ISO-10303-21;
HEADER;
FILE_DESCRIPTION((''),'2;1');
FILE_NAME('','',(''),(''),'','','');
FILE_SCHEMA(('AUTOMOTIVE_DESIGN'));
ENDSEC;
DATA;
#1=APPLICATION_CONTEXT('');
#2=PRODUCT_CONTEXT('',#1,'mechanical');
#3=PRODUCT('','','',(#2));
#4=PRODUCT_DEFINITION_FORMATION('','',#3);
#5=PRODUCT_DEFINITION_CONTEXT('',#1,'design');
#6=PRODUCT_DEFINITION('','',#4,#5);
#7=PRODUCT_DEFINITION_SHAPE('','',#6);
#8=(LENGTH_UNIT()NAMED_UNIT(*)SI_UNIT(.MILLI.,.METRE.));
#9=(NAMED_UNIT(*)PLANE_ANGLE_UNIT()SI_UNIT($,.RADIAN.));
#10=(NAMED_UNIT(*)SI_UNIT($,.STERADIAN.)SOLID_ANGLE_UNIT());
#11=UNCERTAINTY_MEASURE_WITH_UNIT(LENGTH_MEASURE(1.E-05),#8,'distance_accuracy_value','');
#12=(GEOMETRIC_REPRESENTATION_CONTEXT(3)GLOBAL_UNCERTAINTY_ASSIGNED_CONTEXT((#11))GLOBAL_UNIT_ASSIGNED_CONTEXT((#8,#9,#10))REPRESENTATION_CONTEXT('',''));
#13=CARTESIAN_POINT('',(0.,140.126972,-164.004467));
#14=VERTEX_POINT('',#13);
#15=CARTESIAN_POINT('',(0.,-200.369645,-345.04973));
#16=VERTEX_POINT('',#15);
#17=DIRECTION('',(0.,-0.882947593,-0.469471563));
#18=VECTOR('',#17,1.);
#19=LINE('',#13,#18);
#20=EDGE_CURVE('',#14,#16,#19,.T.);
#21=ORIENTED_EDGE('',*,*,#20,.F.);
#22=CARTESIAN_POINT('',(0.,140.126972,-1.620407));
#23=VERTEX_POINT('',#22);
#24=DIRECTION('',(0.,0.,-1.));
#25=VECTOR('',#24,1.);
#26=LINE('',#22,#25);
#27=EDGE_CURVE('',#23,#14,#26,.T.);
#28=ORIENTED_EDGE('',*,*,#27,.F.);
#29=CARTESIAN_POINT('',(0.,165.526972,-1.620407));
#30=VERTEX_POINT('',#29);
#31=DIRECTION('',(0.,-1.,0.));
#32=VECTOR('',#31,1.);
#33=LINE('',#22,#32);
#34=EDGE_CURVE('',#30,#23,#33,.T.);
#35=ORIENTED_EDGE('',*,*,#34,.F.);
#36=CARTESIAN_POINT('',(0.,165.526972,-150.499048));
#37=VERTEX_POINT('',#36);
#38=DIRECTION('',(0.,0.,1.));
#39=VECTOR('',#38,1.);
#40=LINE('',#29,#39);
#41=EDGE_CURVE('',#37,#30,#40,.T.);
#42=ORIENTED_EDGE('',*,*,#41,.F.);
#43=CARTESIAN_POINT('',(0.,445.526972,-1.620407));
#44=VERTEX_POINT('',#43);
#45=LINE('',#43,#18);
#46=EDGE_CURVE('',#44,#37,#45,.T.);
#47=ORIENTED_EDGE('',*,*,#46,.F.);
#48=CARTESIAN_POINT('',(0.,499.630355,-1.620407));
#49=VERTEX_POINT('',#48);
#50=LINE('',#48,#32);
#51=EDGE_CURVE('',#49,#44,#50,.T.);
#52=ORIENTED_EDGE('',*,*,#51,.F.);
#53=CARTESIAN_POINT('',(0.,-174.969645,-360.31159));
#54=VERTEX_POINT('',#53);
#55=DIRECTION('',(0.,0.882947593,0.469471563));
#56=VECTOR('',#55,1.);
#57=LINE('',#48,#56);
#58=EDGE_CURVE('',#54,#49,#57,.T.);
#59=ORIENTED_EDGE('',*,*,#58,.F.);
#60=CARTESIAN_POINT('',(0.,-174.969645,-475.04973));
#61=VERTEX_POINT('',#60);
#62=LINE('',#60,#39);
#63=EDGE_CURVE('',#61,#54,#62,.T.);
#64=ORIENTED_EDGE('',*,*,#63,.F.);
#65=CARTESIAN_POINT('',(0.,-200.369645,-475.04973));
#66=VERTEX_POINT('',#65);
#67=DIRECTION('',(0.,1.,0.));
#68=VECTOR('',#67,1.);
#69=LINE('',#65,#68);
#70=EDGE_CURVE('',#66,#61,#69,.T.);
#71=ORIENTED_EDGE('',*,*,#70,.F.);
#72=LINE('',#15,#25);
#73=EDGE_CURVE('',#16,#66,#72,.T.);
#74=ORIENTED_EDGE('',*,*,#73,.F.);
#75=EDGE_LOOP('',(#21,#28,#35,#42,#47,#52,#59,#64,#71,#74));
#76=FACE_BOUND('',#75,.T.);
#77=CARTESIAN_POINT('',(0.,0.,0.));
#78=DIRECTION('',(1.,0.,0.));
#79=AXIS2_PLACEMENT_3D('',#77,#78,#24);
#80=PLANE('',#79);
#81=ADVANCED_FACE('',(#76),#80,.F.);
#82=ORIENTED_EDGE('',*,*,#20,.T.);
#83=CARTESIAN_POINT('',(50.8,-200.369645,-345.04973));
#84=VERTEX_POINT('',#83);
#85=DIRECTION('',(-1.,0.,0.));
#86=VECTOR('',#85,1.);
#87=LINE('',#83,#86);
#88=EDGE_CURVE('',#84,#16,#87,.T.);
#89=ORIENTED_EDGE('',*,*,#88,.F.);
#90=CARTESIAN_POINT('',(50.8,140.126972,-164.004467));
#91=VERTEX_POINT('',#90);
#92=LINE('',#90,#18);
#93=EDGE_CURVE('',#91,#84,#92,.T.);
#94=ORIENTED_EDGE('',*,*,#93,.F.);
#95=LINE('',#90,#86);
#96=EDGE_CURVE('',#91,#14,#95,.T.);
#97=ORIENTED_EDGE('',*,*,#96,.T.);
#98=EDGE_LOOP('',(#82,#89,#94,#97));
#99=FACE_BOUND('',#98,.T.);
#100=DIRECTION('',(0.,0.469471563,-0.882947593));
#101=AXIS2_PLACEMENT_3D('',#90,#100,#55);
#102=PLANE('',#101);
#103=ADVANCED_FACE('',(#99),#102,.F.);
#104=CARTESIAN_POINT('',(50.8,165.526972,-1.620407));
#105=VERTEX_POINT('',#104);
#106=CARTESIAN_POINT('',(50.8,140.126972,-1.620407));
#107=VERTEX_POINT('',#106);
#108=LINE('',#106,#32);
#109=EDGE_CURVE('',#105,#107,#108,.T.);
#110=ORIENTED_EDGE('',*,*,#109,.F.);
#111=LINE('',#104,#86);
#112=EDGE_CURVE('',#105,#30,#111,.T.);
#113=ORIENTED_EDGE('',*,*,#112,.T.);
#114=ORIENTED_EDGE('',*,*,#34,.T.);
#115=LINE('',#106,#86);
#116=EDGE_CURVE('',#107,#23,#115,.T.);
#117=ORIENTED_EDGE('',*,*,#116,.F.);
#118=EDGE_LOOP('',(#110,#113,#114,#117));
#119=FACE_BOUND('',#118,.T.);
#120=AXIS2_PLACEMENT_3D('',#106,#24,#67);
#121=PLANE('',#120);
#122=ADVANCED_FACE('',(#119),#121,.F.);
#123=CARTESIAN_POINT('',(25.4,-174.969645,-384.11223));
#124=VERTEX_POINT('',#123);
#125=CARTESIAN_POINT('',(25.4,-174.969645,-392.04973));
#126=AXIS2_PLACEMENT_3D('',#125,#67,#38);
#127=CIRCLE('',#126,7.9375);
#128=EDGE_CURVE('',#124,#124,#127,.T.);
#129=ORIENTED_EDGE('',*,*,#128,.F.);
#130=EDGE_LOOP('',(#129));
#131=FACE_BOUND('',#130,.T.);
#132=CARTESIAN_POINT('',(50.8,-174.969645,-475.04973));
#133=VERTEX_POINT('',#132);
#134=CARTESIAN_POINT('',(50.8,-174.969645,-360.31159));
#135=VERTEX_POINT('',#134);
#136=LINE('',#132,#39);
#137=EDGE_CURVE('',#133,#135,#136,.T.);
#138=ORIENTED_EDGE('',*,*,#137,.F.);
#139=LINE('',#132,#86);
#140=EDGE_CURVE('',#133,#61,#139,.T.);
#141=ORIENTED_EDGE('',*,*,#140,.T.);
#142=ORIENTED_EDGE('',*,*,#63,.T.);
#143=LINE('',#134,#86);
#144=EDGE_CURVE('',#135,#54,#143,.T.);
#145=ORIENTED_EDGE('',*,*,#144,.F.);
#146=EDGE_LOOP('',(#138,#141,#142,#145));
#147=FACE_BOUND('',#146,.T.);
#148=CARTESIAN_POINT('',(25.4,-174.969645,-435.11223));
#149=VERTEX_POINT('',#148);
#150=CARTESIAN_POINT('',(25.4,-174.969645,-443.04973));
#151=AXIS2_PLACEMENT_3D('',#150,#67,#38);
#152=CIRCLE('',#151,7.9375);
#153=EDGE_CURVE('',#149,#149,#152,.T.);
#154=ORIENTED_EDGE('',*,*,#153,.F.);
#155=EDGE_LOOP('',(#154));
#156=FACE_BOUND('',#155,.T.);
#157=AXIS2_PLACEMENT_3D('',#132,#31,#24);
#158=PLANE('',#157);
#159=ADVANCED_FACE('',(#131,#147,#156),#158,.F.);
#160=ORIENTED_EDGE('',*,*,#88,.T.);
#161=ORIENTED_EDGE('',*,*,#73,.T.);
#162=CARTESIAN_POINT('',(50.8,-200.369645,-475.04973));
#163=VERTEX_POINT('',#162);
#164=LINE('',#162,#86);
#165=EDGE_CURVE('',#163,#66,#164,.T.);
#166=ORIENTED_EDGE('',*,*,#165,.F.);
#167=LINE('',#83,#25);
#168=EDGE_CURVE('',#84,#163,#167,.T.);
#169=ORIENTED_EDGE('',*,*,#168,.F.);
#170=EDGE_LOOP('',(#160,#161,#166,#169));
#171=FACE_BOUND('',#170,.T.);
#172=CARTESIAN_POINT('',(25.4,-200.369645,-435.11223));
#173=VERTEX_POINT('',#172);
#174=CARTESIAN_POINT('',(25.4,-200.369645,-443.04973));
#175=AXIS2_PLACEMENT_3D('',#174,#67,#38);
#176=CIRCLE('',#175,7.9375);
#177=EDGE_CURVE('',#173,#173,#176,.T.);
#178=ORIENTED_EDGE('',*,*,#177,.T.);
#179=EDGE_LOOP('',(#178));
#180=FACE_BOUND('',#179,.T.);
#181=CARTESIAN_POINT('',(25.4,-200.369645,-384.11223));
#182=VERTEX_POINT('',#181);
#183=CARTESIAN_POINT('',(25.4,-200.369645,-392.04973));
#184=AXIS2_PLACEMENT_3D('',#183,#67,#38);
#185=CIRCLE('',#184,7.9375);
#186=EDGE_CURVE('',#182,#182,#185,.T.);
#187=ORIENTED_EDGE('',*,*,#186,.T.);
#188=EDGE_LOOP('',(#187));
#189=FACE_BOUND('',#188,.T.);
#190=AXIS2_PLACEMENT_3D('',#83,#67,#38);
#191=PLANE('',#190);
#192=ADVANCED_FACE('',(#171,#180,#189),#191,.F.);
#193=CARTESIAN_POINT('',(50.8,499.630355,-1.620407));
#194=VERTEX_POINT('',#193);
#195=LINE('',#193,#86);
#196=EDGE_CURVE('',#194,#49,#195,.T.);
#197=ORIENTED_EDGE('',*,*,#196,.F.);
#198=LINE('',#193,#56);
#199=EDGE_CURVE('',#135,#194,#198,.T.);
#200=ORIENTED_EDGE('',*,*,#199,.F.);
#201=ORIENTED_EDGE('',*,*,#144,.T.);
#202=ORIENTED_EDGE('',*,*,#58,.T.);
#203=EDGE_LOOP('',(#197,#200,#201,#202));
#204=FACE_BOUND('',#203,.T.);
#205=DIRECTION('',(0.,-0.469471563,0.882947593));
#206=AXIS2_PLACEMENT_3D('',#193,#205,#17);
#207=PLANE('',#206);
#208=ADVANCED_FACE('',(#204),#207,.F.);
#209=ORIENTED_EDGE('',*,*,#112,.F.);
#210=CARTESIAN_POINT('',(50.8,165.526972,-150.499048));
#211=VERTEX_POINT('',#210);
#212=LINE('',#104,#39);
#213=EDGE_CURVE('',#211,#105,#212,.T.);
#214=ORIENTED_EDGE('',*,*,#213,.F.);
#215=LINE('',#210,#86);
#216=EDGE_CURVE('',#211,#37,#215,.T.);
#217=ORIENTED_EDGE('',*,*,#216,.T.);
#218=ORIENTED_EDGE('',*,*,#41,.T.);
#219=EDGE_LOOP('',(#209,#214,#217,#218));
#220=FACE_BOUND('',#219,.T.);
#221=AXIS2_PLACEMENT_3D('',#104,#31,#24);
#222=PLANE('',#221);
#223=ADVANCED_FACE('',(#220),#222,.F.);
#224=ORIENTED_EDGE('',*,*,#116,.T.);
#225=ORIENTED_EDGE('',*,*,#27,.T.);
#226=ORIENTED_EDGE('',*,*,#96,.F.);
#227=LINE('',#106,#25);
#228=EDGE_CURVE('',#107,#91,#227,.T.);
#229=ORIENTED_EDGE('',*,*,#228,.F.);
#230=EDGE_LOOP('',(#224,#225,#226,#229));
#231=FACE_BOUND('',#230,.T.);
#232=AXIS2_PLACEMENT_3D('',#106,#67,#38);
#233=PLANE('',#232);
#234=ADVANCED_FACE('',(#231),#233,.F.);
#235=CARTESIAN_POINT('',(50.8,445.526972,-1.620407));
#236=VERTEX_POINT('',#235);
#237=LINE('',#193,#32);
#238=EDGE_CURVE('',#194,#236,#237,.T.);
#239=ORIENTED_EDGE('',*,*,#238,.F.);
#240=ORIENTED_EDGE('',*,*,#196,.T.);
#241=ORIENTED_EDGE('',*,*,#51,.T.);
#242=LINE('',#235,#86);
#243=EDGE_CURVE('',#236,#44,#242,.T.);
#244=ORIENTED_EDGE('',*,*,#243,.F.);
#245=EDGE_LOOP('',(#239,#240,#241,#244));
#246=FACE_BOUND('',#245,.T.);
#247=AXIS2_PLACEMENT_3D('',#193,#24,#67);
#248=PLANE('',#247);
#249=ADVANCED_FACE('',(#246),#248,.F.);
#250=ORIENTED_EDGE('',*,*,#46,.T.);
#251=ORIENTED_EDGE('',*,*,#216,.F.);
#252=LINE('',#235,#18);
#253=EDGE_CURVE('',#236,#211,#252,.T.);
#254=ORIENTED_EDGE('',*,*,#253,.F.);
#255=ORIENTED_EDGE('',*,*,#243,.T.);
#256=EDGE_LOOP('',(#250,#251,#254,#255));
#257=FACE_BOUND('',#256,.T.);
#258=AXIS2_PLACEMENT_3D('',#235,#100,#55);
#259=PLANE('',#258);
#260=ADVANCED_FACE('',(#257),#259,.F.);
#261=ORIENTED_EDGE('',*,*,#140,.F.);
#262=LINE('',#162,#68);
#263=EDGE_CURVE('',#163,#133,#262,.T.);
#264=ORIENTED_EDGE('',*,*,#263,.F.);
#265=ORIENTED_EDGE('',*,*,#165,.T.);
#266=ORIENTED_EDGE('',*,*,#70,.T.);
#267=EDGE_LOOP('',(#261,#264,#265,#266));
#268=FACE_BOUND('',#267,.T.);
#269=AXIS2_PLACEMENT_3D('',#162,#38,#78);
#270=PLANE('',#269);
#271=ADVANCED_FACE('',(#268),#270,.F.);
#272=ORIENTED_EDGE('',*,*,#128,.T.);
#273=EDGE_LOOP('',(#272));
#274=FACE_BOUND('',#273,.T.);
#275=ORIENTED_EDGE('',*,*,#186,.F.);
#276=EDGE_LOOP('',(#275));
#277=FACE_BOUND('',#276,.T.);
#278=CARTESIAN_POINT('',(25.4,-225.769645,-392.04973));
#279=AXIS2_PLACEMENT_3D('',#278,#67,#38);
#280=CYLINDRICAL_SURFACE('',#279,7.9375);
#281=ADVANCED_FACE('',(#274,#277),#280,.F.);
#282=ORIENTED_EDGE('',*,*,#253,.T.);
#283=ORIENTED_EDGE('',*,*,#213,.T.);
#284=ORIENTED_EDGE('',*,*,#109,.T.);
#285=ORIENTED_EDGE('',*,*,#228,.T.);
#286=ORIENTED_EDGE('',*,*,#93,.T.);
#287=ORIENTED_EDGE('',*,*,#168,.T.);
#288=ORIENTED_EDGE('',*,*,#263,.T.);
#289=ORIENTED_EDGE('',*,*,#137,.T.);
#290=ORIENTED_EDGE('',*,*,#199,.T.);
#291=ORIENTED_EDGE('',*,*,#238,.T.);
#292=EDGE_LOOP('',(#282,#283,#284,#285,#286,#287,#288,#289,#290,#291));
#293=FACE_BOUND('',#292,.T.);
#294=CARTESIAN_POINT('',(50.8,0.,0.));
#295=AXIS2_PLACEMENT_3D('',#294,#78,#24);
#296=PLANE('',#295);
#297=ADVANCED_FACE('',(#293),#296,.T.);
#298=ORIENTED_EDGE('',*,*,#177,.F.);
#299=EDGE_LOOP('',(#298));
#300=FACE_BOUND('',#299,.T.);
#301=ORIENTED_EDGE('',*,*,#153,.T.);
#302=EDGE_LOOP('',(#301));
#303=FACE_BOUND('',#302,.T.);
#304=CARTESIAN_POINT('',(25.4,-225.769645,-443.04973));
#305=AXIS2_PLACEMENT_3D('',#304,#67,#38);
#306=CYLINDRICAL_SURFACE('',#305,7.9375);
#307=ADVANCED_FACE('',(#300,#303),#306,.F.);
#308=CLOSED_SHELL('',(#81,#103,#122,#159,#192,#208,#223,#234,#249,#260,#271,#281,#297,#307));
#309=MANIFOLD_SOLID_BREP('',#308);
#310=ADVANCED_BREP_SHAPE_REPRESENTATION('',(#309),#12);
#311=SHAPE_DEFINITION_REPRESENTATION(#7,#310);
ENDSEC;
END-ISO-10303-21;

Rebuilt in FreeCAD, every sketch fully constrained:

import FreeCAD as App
import Part
import Sketcher

V = App.Vector
Q = App.Units.Quantity


def add_polygon(sketch, points):
    """Adds a closed chain of lines whose ends are joined by coincident constraints."""
    first, n = sketch.GeometryCount, len(points)
    for a, b in zip(points, points[1:] + points[:1]):
        sketch.addGeometry(Part.LineSegment(App.Vector(*a, 0), App.Vector(*b, 0)), False)
    for i in range(n):
        sketch.addConstraint(Sketcher.Constraint("Coincident", first + i, 2, first + (i + 1) % n, 1))

doc = App.newDocument("Part")
body = doc.addObject("PartDesign::Body", "Body")

# Sketch on YZ plane
sketch1 = body.newObject("Sketcher::SketchObject", "Sketch")
sketch1.AttachmentSupport = (doc.getObject("YZ_Plane"), [""])
sketch1.MapMode = "FlatFace"
add_polygon(sketch1, [(-174.969644, -360.31159), (499.630356, -1.620407), (445.526972, -1.620407), (165.526972, -150.499048), (165.526972, -1.620407), (140.126972, -1.620407), (140.126972, -164.004467), (-200.369644, -345.04973), (-200.369644, -475.04973), (-174.969644, -475.04973)])  # lines 0-9
sketch1.addConstraint([
    Sketcher.Constraint("Horizontal", 1),
    Sketcher.Constraint("Vertical", 3),
    Sketcher.Constraint("Horizontal", 4),
    Sketcher.Constraint("Vertical", 5),
    Sketcher.Constraint("Vertical", 7),
    Sketcher.Constraint("Horizontal", 8),
    Sketcher.Constraint("Vertical", 9),
    Sketcher.Constraint("Parallel", 0, 2),
    Sketcher.Constraint("Parallel", 2, 6),
    Sketcher.Constraint("Horizontal", 1, 2, 3, 2),
    Sketcher.Constraint("Equal", 4, 8),
    Sketcher.Constraint("DistanceX", 4, 2, 4, 1, Q("1 in")),
    Sketcher.Constraint("Angle", 0, Q("28 deg")),
    Sketcher.Constraint("DistanceY", 7, 2, 7, 1, 130.0),
    Sketcher.Constraint("DistanceY", 3, 1, 3, 2, 148.878641),
    Sketcher.Constraint("DistanceY", 5, 2, 5, 1, 162.38406),
    Sketcher.Constraint("DistanceY", 9, 1, 9, 2, 114.73814),
    Sketcher.Constraint("Distance", 6, 385.63627),
    Sketcher.Constraint("DistanceY", 6, 2, -1, 1, 345.04973),
    Sketcher.Constraint("DistanceX", -1, 1, 0, 2, 499.630356),
])
pad1 = body.newObject("PartDesign::Pad", "Pad")
pad1.Profile = sketch1
pad1.Length = Q("2 in")

# Sketch on XZ plane
sketch2 = body.newObject("Sketcher::SketchObject", "Sketch001")
sketch2.AttachmentSupport = (doc.getObject("XZ_Plane"), [""])
sketch2.MapMode = "FlatFace"
sketch2.AttachmentOffset = App.Placement(V(0, 0, 174.969644), App.Rotation())
sketch2.addGeometry([
    Part.Circle(V(25.4, -443.04973, 0), V(0, 0, 1), 7.9375),
    Part.Circle(V(25.4, -392.04973, 0), V(0, 0, 1), 7.9375),
], False)
sketch2.addConstraint([
    Sketcher.Constraint("Equal", 0, 1),
    Sketcher.Constraint("Vertical", 0, 3, 1, 3),
    Sketcher.Constraint("Diameter", 0, Q("0.625 in")),
    Sketcher.Constraint("DistanceX", -1, 1, 0, 3, Q("1 in")),
    Sketcher.Constraint("DistanceY", 0, 3, 1, 3, 51.0),
    Sketcher.Constraint("DistanceY", 0, 3, -1, 1, 443.04973),
])
pocket1 = body.newObject("PartDesign::Pocket", "Pocket")
pocket1.Profile = sketch2
pocket1.Length = Q("2 in")
pocket1.Reversed = True

doc.recompute()
